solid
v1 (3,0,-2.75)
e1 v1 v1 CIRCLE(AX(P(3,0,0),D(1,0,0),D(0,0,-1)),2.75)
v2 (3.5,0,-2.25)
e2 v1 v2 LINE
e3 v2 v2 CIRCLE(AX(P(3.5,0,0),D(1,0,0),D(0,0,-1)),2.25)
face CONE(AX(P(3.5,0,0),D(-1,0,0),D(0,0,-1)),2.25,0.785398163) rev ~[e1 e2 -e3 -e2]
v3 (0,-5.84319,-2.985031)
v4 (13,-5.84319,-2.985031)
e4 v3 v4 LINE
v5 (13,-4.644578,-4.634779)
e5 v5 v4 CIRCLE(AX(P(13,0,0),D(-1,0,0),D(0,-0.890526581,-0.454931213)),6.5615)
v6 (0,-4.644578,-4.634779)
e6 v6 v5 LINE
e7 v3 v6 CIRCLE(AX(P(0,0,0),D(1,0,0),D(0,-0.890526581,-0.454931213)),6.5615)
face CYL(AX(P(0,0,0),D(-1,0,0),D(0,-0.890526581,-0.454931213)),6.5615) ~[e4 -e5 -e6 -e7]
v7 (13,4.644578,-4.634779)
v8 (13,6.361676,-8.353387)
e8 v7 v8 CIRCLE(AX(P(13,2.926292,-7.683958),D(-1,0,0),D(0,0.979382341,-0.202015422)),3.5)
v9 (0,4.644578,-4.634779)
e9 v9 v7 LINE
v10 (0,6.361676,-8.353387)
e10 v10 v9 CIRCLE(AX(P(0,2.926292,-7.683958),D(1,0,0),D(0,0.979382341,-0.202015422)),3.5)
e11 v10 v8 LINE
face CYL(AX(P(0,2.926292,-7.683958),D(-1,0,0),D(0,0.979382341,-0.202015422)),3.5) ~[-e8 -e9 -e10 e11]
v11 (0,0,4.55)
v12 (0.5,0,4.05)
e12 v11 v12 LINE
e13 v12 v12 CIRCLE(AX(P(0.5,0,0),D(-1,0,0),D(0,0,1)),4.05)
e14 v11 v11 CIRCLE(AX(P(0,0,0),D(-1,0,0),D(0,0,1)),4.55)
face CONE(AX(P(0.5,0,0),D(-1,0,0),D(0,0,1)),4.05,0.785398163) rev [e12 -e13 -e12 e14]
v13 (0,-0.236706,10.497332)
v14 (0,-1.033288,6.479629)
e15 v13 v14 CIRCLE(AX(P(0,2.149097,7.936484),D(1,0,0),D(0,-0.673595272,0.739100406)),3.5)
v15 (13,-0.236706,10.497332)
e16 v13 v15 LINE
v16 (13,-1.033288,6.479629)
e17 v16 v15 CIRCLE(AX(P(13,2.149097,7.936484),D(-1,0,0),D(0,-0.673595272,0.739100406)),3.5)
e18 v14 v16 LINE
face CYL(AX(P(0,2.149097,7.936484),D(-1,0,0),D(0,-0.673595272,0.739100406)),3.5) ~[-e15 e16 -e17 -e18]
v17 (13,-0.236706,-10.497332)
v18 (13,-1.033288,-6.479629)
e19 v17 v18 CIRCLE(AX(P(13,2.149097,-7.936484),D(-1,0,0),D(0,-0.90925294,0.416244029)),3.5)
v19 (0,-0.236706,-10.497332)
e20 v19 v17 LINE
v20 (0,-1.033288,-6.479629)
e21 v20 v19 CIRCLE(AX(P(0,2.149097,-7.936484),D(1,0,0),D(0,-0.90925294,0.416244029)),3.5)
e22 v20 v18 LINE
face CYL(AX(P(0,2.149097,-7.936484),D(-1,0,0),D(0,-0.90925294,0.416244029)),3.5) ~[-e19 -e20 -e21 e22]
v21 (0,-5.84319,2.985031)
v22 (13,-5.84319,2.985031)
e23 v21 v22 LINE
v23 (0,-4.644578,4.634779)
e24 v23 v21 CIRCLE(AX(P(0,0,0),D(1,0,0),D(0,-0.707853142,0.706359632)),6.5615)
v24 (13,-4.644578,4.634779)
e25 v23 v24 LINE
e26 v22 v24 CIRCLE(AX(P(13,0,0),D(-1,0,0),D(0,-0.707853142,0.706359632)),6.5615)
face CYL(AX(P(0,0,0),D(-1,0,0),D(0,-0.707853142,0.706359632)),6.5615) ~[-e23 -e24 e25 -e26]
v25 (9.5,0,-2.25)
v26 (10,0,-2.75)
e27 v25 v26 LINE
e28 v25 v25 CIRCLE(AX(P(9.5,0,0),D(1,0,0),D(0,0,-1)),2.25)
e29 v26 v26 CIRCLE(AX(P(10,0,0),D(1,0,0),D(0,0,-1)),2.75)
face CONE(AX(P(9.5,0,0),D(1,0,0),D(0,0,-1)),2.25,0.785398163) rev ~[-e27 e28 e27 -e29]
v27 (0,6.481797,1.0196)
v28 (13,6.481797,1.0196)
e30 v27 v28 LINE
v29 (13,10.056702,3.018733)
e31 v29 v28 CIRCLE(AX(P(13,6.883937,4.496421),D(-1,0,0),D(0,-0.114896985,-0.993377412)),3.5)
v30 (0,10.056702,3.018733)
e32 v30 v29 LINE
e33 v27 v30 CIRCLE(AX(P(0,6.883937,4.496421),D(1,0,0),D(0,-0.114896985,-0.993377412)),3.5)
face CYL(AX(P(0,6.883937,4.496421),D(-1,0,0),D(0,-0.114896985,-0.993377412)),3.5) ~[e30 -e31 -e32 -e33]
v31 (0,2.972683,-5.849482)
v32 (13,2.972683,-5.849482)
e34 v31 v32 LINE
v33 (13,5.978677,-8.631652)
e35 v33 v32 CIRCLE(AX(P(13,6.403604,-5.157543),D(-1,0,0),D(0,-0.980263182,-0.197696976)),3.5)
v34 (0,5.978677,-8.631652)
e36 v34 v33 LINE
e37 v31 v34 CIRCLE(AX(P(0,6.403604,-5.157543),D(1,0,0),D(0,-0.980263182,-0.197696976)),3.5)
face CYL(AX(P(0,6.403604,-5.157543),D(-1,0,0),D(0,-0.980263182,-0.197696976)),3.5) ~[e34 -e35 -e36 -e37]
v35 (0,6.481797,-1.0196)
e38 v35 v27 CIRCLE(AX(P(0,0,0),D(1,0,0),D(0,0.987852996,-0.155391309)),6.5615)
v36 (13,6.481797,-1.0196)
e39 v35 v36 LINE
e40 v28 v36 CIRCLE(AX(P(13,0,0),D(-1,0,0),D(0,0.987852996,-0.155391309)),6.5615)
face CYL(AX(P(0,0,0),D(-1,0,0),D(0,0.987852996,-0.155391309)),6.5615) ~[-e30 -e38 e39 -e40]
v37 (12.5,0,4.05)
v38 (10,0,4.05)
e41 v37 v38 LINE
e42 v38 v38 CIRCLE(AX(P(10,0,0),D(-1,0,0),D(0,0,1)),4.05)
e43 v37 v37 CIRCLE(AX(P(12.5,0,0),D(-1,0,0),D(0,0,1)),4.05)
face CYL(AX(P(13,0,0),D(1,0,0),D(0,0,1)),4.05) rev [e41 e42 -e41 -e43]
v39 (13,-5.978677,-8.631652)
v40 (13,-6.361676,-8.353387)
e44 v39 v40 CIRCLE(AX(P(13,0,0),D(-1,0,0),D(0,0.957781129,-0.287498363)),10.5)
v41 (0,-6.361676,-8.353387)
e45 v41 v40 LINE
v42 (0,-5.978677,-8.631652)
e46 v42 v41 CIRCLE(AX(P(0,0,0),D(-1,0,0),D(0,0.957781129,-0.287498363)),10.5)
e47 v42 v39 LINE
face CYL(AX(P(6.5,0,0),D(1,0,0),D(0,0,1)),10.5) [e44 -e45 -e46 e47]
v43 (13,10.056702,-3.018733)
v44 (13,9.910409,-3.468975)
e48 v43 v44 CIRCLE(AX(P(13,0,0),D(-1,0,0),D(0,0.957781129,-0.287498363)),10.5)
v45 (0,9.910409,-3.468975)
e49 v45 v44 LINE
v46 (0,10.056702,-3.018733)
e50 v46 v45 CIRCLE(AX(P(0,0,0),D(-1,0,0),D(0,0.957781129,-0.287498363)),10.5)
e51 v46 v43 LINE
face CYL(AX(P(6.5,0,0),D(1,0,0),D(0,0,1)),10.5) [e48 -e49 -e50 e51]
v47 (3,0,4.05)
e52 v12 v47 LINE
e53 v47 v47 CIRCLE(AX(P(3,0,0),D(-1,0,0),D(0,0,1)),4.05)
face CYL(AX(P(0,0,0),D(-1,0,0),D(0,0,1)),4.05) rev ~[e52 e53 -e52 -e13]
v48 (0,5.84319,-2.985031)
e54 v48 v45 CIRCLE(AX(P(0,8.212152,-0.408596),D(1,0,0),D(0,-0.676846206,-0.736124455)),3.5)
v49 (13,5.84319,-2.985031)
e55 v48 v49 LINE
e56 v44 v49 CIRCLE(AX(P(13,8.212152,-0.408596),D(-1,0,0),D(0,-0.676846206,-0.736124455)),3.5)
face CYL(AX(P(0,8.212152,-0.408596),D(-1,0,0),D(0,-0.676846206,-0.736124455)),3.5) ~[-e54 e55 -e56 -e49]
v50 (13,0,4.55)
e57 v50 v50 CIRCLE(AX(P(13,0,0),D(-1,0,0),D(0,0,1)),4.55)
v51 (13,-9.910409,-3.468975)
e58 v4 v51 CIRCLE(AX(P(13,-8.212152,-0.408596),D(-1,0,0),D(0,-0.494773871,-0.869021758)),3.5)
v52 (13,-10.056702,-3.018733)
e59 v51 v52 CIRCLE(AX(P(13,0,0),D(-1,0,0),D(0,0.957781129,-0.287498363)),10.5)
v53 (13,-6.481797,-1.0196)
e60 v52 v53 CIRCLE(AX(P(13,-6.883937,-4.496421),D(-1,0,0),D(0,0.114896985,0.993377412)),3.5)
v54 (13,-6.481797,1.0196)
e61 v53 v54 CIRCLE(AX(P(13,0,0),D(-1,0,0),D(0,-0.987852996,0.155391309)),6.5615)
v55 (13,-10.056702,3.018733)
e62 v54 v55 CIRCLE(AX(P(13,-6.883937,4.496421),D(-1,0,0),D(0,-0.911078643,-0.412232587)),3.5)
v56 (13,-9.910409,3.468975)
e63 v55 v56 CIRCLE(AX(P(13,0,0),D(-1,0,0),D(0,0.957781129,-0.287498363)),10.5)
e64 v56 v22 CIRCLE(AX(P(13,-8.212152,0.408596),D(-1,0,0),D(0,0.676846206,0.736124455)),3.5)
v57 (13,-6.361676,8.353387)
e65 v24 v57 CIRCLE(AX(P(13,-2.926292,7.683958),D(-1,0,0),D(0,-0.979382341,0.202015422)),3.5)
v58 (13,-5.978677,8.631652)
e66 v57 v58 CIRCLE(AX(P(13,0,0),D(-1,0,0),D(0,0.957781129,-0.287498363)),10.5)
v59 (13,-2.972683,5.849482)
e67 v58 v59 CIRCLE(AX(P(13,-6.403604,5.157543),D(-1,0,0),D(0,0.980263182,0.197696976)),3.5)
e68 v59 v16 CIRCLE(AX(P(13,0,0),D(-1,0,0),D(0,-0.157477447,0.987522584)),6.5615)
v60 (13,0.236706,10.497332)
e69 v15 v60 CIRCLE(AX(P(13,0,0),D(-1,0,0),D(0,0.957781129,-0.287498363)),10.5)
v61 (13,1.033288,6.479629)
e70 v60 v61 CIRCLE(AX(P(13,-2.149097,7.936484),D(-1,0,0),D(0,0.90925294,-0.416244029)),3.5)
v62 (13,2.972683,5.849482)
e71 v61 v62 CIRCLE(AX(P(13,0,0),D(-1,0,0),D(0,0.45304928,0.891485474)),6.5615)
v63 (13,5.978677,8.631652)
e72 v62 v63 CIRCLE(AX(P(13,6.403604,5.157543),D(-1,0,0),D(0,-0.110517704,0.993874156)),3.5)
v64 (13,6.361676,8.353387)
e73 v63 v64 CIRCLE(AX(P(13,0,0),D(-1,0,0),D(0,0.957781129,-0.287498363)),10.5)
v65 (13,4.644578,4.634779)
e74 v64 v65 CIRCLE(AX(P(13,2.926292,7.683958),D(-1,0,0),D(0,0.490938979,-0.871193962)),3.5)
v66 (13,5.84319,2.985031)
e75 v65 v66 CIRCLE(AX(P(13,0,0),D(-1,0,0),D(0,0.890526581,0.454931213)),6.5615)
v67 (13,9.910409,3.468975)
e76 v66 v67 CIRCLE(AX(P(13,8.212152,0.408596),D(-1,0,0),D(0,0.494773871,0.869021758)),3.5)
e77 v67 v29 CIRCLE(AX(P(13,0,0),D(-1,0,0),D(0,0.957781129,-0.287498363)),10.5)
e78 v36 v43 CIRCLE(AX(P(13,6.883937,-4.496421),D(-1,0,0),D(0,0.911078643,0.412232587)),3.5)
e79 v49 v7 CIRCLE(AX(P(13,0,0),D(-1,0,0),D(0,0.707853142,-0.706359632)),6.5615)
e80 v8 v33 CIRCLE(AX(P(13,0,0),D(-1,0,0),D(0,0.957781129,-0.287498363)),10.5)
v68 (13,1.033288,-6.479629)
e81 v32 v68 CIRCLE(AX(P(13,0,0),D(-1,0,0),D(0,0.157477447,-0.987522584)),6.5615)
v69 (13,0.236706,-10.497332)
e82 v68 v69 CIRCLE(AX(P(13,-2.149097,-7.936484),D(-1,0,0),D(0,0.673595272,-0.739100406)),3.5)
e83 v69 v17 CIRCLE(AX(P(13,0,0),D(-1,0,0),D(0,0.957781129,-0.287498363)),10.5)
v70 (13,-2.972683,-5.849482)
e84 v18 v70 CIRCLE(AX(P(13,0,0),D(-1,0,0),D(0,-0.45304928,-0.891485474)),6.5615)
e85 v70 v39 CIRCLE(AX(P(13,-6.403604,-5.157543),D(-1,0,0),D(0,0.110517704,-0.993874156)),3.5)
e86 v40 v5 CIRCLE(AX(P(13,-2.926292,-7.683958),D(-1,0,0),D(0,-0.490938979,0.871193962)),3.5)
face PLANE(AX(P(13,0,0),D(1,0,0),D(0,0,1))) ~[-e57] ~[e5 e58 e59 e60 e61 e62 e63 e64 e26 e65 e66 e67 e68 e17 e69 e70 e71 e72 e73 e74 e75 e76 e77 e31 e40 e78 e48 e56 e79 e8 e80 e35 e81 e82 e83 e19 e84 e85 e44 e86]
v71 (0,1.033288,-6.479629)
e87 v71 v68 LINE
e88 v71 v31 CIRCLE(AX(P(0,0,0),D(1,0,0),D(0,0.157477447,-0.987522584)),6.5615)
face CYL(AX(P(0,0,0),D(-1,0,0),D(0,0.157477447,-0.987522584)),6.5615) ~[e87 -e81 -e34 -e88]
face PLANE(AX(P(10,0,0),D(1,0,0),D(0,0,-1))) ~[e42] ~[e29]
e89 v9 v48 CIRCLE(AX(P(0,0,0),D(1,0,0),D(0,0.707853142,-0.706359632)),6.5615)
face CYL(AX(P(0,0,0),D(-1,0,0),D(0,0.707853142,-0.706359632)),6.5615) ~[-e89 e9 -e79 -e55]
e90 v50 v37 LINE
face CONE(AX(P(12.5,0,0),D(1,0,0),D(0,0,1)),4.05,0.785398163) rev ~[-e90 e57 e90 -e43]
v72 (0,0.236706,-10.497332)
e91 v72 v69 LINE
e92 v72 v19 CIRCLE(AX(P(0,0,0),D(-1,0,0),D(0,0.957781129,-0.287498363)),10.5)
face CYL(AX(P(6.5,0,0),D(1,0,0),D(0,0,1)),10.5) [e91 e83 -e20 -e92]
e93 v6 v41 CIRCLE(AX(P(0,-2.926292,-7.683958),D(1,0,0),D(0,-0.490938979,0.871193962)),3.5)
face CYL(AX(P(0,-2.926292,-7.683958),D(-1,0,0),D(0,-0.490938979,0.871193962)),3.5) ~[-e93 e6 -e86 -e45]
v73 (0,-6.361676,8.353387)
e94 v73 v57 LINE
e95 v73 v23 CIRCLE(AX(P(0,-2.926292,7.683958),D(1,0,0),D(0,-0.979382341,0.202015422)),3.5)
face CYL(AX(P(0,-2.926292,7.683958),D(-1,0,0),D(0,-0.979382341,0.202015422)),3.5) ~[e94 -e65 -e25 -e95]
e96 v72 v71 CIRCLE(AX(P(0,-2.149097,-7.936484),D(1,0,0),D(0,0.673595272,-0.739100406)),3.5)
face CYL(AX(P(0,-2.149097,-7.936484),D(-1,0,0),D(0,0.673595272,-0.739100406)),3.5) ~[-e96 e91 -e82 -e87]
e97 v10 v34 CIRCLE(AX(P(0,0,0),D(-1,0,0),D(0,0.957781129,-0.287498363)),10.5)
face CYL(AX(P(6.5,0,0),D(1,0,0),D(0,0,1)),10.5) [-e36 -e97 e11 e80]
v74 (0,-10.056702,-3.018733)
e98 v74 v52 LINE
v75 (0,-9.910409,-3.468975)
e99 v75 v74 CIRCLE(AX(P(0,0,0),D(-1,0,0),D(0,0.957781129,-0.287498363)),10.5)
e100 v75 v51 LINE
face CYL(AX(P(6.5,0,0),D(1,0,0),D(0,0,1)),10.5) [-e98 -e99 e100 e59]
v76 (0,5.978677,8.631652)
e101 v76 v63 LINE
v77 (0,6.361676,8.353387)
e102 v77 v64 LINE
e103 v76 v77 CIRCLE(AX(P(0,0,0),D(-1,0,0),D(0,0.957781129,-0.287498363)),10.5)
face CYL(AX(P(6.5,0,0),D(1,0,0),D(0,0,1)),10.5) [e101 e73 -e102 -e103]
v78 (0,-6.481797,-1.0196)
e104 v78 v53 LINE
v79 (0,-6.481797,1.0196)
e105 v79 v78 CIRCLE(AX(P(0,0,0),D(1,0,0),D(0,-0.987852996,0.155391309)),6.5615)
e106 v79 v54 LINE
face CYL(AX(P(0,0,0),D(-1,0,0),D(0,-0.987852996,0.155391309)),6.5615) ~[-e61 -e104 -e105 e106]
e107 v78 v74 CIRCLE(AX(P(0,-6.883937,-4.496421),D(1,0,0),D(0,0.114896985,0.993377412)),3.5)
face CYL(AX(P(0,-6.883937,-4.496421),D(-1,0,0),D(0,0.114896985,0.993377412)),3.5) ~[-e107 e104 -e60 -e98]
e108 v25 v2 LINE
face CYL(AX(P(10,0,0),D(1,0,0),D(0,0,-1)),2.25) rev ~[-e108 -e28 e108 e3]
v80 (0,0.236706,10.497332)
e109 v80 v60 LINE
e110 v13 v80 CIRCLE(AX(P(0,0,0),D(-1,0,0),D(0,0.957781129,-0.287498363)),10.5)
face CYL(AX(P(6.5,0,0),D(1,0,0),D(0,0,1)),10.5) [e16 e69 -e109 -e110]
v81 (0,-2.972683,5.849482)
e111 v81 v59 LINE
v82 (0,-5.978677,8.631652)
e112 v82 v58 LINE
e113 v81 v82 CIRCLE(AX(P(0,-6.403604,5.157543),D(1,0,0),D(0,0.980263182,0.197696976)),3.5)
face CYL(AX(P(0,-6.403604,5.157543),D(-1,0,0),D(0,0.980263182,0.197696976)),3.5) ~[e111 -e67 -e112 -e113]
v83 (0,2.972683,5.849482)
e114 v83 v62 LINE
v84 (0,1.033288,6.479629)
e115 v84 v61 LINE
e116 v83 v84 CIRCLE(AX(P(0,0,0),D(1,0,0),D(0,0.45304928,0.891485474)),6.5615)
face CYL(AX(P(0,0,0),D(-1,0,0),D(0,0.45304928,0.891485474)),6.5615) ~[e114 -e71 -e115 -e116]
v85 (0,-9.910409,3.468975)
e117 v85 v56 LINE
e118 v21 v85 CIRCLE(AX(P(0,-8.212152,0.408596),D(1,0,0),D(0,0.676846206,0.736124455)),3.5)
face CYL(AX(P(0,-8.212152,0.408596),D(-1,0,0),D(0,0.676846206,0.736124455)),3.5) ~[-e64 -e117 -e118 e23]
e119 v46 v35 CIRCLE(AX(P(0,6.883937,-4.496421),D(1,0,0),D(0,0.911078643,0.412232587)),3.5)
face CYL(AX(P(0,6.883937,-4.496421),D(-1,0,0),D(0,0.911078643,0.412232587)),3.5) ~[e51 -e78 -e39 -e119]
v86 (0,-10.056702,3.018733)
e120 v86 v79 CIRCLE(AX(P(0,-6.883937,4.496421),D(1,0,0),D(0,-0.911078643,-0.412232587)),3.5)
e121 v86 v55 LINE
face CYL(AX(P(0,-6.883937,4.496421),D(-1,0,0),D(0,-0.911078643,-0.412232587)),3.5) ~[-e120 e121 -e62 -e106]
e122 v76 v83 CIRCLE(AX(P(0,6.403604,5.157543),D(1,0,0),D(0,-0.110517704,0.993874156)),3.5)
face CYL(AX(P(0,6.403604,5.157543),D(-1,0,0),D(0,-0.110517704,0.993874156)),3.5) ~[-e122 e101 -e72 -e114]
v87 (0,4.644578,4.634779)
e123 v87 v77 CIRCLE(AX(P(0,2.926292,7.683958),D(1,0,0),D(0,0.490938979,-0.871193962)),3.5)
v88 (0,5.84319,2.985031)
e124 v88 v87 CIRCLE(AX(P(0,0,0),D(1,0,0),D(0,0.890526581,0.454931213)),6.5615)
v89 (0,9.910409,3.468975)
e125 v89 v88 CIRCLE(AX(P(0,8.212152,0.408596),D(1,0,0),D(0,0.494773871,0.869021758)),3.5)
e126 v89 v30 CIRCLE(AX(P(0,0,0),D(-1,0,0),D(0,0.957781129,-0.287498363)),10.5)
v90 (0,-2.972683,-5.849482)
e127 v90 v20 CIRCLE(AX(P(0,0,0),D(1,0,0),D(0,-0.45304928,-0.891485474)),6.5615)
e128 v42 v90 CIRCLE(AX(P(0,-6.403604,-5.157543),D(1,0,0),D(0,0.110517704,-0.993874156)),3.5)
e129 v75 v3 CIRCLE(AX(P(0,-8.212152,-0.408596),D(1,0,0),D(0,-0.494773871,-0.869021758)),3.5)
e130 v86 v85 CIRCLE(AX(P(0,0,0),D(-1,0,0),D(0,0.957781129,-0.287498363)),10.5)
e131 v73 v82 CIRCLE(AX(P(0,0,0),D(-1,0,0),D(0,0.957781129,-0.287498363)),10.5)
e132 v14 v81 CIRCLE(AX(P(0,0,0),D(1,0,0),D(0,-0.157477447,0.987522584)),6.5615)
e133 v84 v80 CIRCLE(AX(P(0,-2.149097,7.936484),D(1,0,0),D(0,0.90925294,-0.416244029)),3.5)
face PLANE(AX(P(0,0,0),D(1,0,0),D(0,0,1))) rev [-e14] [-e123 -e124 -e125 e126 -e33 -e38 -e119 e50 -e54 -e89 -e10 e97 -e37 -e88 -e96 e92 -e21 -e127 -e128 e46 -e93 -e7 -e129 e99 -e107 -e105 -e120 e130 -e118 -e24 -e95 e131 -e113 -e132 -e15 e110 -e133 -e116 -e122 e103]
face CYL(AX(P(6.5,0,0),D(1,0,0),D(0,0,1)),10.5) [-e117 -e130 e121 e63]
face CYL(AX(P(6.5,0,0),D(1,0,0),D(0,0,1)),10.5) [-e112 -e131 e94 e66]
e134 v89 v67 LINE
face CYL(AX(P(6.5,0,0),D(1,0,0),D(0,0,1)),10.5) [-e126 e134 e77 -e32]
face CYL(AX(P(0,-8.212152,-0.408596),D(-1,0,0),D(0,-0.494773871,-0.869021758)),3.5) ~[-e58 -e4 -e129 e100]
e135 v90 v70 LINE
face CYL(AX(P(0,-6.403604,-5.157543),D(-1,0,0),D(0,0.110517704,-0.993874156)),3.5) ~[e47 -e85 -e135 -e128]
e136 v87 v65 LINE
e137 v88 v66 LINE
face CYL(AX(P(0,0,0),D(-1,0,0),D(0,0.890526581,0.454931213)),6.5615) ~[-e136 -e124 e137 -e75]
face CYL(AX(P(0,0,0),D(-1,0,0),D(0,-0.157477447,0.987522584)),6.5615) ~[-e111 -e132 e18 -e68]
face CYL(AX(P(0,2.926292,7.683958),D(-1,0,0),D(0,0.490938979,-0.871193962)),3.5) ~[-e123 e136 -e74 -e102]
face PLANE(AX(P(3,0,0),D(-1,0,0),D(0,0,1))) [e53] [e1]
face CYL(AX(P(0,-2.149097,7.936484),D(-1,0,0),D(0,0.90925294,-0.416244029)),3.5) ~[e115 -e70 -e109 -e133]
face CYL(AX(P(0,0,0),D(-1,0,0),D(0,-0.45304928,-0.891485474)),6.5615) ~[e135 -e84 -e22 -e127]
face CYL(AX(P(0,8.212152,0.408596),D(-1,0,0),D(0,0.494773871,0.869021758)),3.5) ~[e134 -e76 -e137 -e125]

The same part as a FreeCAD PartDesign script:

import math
import FreeCAD as App
import Part
import Sketcher

V = App.Vector
Q = App.Units.Quantity


def edges_at(feature, points):
    """Names of the edges that pass closest to the given points."""
    edges = feature.Shape.Edges
    near = lambda p: min(range(len(edges)), key=lambda i: edges[i].distToShape(Part.Vertex(*p))[0])
    return sorted({f"Edge{near(p) + 1}" for p in points})


def add_polygon(sketch, points):
    """Adds a closed chain of lines whose ends are joined by coincident constraints."""
    first, n = sketch.GeometryCount, len(points)
    for a, b in zip(points, points[1:] + points[:1]):
        sketch.addGeometry(Part.LineSegment(App.Vector(*a, 0), App.Vector(*b, 0)), False)
    for i in range(n):
        sketch.addConstraint(Sketcher.Constraint("Coincident", first + i, 2, first + (i + 1) % n, 1))

doc = App.newDocument("Part")
params = doc.addObject("Spreadsheet::Sheet", "Params")
for row, (alias, value) in enumerate([
    ("sketch1_width", "13 mm"),
    ("sketch1_height", "10.5 mm"),
    ("revolution_angle", "360 deg"),
    ("sketch2_radius", "3.5 mm"),
    ("sketch3_diameter", "3 mm"),
    ("pocket2_length", "100.000102 mm"),
    ("sketch4_diameter", "8.1 mm"),
    ("pocket3_length", "3 mm"),
    ("sketch5_diameter", "4.5 mm"),
    ("pocket4_length", "7 mm"),
    ("chamfer_size", "0.5 mm"),
], start=1):
    params.set(f"A{row}", alias)
    params.set(f"B{row}", "=" + value)
    params.setAlias(f"B{row}", alias)

body = doc.addObject("PartDesign::Body", "Body")

sketch1 = body.newObject("Sketcher::SketchObject", "Sketch")
sketch1.AttachmentSupport = (doc.getObject("XZ_Plane"), [""])
sketch1.MapMode = "FlatFace"
add_polygon(sketch1, [(0, -10), (0, 0), (13, 0), (13, -10)])
sketch1.addConstraint(Sketcher.Constraint("Vertical", 0))
sketch1.addConstraint(Sketcher.Constraint("Horizontal", 1))
sketch1.addConstraint(Sketcher.Constraint("Vertical", 2))
sketch1.addConstraint(Sketcher.Constraint("Horizontal", 3))
sketch1.addConstraint(Sketcher.Constraint("Coincident", 0, 2, -1, 1))
sketch1.addConstraint(Sketcher.Constraint("DistanceX", 1, 1, 1, 2, Q("13 mm")))
sketch1.addConstraint(Sketcher.Constraint("DistanceY", 0, 1, 0, 2, Q("10.5 mm")))
sketch1.setExpression("Constraints[9]", "Params.sketch1_width")
sketch1.setExpression("Constraints[10]", "Params.sketch1_height")
revolution = body.newObject("PartDesign::Revolution", "Revolution")
revolution.Profile = sketch1
revolution.ReferenceAxis = (sketch1, ["H_Axis"])
revolution.setExpression("Angle", "Params.revolution_angle")

sketch2 = body.newObject("Sketcher::SketchObject", "Sketch001")
sketch2.AttachmentSupport = (doc.getObject("YZ_Plane"), [""])
sketch2.MapMode = "FlatFace"
sketch2.addGeometry(Part.ArcOfCircle(Part.Circle(V(0, 0, 0), V(0, 0, 1), 6.6), math.radians(-8.94), math.radians(8.94)), False)
sketch2.addGeometry(Part.ArcOfCircle(Part.Circle(V(6.9, -4.5, 0), V(0, 0, 1), 3.5), math.radians(24), math.radians(97)), False)
sketch2.addGeometry(Part.ArcOfCircle(Part.Circle(V(0, 0, 0), V(0, 0, 1), 10.5), math.radians(-17), math.radians(17)), False)
sketch2.addGeometry(Part.ArcOfCircle(Part.Circle(V(6.9, 4.5, 0), V(0, 0, 1), 3.5), math.radians(-97), math.radians(-24)), False)
sketch2.addConstraint(Sketcher.Constraint("Coincident", 0, 1, 1, 2))
sketch2.addConstraint(Sketcher.Constraint("Coincident", 1, 1, 2, 1))
sketch2.addConstraint(Sketcher.Constraint("Coincident", 2, 2, 3, 2))
sketch2.addConstraint(Sketcher.Constraint("Coincident", 3, 1, 0, 2))
sketch2.addConstraint(Sketcher.Constraint("Coincident", 0, 3, -1, 1))
sketch2.addConstraint(Sketcher.Constraint("Coincident", 2, 3, -1, 1))
sketch2.addConstraint(Sketcher.Constraint("Equal", 1, 3))
sketch2.addConstraint(Sketcher.Constraint("Symmetric", 1, 3, 3, 3, -1))
sketch2.addConstraint(Sketcher.Constraint("Radius", 1, Q("3.5 mm")))
sketch2.addConstraint(Sketcher.Constraint("Radius", 0, Q("6.5615 mm")))
sketch2.addConstraint(Sketcher.Constraint("Radius", 2, Q("10.5254 mm")))
sketch2.addConstraint(Sketcher.Constraint("DistanceY", 0, 1, -1, 1, Q("1.0196 mm")))
sketch2.addConstraint(Sketcher.Constraint("DistanceY", 1, 3, -1, 1, Q("4.496421 mm")))
sketch2.setExpression("Constraints[8]", "Params.sketch2_radius")
pocket1 = body.newObject("PartDesign::Pocket", "Pocket")
pocket1.Profile = sketch2
pocket1.Type = "ThroughAll"
pocket1.Reversed = True
doc.recompute()

polarpattern = body.newObject("PartDesign::PolarPattern", "PolarPattern")
polarpattern.Originals = [pocket1]
polarpattern.Axis = (doc.getObject("X_Axis"), [""])
polarpattern.Angle = 360
polarpattern.Occurrences = 10
body.Tip = polarpattern

sketch3 = body.newObject("Sketcher::SketchObject", "Sketch002")
sketch3.AttachmentSupport = (doc.getObject("YZ_Plane"), [""])
sketch3.MapMode = "FlatFace"
sketch3.addGeometry(Part.Circle(V(0, 0, 0), V(0, 0, 1), 1.5), False)
sketch3.addConstraint(Sketcher.Constraint("Coincident", 0, 3, -1, 1))
sketch3.addConstraint(Sketcher.Constraint("Diameter", 0, Q("3 mm")))
sketch3.setExpression("Constraints[1]", "Params.sketch3_diameter")
pocket2 = body.newObject("PartDesign::Pocket", "Pocket001")
pocket2.Profile = sketch3
pocket2.setExpression("Length", "Params.pocket2_length")
pocket2.Midplane = True

sketch4 = body.newObject("Sketcher::SketchObject", "Sketch003")
sketch4.AttachmentSupport = (doc.getObject("YZ_Plane"), [""])
sketch4.MapMode = "FlatFace"
sketch4.addGeometry(Part.Circle(V(0, 0, 0), V(0, 0, 1), 4), False)
sketch4.addConstraint(Sketcher.Constraint("Coincident", 0, 3, -1, 1))
sketch4.addConstraint(Sketcher.Constraint("Diameter", 0, Q("8.1 mm")))
sketch4.setExpression("Constraints[1]", "Params.sketch4_diameter")
pocket3 = body.newObject("PartDesign::Pocket", "Pocket002")
pocket3.Profile = sketch4
pocket3.setExpression("Length", "Params.pocket3_length")
pocket3.Reversed = True
doc.recompute()

datumplane = body.newObject("PartDesign::Plane", "DatumPlane")
datumplane.AttachmentSupport = (doc.getObject("YZ_Plane"), [""])
datumplane.MapMode = "FlatFace"
datumplane.AttachmentOffset = App.Placement(V(0, 0, 6.5), App.Rotation())
mirrored = body.newObject("PartDesign::Mirrored", "Mirrored")
mirrored.Originals = [pocket3]
mirrored.MirrorPlane = (datumplane, [""])
body.Tip = mirrored

sketch5 = body.newObject("Sketcher::SketchObject", "Sketch004")
sketch5.AttachmentSupport = (doc.getObject("YZ_Plane"), [""])
sketch5.MapMode = "FlatFace"
sketch5.AttachmentOffset = App.Placement(V(0, 0, 10), App.Rotation())
sketch5.addGeometry(Part.Circle(V(0, 0, 0), V(0, 0, 1), 2.2), False)
sketch5.addConstraint(Sketcher.Constraint("Coincident", 0, 3, -1, 1))
sketch5.addConstraint(Sketcher.Constraint("Diameter", 0, Q("4.5 mm")))
sketch5.setExpression("Constraints[1]", "Params.sketch5_diameter")
pocket4 = body.newObject("PartDesign::Pocket", "Pocket003")
pocket4.Profile = sketch5
pocket4.setExpression("Length", "Params.pocket4_length")
doc.recompute()

chamfer = body.newObject("PartDesign::Chamfer", "Chamfer")
chamfer.Base = (pocket4, edges_at(pocket4, [
    (0, 0, -4.05),
    (13, 0, -4.05),
    (3, 0, 2.25),
    (10, 0, 2.25),
]))
chamfer.setExpression("Size", "Params.chamfer_size")

doc.recompute()
